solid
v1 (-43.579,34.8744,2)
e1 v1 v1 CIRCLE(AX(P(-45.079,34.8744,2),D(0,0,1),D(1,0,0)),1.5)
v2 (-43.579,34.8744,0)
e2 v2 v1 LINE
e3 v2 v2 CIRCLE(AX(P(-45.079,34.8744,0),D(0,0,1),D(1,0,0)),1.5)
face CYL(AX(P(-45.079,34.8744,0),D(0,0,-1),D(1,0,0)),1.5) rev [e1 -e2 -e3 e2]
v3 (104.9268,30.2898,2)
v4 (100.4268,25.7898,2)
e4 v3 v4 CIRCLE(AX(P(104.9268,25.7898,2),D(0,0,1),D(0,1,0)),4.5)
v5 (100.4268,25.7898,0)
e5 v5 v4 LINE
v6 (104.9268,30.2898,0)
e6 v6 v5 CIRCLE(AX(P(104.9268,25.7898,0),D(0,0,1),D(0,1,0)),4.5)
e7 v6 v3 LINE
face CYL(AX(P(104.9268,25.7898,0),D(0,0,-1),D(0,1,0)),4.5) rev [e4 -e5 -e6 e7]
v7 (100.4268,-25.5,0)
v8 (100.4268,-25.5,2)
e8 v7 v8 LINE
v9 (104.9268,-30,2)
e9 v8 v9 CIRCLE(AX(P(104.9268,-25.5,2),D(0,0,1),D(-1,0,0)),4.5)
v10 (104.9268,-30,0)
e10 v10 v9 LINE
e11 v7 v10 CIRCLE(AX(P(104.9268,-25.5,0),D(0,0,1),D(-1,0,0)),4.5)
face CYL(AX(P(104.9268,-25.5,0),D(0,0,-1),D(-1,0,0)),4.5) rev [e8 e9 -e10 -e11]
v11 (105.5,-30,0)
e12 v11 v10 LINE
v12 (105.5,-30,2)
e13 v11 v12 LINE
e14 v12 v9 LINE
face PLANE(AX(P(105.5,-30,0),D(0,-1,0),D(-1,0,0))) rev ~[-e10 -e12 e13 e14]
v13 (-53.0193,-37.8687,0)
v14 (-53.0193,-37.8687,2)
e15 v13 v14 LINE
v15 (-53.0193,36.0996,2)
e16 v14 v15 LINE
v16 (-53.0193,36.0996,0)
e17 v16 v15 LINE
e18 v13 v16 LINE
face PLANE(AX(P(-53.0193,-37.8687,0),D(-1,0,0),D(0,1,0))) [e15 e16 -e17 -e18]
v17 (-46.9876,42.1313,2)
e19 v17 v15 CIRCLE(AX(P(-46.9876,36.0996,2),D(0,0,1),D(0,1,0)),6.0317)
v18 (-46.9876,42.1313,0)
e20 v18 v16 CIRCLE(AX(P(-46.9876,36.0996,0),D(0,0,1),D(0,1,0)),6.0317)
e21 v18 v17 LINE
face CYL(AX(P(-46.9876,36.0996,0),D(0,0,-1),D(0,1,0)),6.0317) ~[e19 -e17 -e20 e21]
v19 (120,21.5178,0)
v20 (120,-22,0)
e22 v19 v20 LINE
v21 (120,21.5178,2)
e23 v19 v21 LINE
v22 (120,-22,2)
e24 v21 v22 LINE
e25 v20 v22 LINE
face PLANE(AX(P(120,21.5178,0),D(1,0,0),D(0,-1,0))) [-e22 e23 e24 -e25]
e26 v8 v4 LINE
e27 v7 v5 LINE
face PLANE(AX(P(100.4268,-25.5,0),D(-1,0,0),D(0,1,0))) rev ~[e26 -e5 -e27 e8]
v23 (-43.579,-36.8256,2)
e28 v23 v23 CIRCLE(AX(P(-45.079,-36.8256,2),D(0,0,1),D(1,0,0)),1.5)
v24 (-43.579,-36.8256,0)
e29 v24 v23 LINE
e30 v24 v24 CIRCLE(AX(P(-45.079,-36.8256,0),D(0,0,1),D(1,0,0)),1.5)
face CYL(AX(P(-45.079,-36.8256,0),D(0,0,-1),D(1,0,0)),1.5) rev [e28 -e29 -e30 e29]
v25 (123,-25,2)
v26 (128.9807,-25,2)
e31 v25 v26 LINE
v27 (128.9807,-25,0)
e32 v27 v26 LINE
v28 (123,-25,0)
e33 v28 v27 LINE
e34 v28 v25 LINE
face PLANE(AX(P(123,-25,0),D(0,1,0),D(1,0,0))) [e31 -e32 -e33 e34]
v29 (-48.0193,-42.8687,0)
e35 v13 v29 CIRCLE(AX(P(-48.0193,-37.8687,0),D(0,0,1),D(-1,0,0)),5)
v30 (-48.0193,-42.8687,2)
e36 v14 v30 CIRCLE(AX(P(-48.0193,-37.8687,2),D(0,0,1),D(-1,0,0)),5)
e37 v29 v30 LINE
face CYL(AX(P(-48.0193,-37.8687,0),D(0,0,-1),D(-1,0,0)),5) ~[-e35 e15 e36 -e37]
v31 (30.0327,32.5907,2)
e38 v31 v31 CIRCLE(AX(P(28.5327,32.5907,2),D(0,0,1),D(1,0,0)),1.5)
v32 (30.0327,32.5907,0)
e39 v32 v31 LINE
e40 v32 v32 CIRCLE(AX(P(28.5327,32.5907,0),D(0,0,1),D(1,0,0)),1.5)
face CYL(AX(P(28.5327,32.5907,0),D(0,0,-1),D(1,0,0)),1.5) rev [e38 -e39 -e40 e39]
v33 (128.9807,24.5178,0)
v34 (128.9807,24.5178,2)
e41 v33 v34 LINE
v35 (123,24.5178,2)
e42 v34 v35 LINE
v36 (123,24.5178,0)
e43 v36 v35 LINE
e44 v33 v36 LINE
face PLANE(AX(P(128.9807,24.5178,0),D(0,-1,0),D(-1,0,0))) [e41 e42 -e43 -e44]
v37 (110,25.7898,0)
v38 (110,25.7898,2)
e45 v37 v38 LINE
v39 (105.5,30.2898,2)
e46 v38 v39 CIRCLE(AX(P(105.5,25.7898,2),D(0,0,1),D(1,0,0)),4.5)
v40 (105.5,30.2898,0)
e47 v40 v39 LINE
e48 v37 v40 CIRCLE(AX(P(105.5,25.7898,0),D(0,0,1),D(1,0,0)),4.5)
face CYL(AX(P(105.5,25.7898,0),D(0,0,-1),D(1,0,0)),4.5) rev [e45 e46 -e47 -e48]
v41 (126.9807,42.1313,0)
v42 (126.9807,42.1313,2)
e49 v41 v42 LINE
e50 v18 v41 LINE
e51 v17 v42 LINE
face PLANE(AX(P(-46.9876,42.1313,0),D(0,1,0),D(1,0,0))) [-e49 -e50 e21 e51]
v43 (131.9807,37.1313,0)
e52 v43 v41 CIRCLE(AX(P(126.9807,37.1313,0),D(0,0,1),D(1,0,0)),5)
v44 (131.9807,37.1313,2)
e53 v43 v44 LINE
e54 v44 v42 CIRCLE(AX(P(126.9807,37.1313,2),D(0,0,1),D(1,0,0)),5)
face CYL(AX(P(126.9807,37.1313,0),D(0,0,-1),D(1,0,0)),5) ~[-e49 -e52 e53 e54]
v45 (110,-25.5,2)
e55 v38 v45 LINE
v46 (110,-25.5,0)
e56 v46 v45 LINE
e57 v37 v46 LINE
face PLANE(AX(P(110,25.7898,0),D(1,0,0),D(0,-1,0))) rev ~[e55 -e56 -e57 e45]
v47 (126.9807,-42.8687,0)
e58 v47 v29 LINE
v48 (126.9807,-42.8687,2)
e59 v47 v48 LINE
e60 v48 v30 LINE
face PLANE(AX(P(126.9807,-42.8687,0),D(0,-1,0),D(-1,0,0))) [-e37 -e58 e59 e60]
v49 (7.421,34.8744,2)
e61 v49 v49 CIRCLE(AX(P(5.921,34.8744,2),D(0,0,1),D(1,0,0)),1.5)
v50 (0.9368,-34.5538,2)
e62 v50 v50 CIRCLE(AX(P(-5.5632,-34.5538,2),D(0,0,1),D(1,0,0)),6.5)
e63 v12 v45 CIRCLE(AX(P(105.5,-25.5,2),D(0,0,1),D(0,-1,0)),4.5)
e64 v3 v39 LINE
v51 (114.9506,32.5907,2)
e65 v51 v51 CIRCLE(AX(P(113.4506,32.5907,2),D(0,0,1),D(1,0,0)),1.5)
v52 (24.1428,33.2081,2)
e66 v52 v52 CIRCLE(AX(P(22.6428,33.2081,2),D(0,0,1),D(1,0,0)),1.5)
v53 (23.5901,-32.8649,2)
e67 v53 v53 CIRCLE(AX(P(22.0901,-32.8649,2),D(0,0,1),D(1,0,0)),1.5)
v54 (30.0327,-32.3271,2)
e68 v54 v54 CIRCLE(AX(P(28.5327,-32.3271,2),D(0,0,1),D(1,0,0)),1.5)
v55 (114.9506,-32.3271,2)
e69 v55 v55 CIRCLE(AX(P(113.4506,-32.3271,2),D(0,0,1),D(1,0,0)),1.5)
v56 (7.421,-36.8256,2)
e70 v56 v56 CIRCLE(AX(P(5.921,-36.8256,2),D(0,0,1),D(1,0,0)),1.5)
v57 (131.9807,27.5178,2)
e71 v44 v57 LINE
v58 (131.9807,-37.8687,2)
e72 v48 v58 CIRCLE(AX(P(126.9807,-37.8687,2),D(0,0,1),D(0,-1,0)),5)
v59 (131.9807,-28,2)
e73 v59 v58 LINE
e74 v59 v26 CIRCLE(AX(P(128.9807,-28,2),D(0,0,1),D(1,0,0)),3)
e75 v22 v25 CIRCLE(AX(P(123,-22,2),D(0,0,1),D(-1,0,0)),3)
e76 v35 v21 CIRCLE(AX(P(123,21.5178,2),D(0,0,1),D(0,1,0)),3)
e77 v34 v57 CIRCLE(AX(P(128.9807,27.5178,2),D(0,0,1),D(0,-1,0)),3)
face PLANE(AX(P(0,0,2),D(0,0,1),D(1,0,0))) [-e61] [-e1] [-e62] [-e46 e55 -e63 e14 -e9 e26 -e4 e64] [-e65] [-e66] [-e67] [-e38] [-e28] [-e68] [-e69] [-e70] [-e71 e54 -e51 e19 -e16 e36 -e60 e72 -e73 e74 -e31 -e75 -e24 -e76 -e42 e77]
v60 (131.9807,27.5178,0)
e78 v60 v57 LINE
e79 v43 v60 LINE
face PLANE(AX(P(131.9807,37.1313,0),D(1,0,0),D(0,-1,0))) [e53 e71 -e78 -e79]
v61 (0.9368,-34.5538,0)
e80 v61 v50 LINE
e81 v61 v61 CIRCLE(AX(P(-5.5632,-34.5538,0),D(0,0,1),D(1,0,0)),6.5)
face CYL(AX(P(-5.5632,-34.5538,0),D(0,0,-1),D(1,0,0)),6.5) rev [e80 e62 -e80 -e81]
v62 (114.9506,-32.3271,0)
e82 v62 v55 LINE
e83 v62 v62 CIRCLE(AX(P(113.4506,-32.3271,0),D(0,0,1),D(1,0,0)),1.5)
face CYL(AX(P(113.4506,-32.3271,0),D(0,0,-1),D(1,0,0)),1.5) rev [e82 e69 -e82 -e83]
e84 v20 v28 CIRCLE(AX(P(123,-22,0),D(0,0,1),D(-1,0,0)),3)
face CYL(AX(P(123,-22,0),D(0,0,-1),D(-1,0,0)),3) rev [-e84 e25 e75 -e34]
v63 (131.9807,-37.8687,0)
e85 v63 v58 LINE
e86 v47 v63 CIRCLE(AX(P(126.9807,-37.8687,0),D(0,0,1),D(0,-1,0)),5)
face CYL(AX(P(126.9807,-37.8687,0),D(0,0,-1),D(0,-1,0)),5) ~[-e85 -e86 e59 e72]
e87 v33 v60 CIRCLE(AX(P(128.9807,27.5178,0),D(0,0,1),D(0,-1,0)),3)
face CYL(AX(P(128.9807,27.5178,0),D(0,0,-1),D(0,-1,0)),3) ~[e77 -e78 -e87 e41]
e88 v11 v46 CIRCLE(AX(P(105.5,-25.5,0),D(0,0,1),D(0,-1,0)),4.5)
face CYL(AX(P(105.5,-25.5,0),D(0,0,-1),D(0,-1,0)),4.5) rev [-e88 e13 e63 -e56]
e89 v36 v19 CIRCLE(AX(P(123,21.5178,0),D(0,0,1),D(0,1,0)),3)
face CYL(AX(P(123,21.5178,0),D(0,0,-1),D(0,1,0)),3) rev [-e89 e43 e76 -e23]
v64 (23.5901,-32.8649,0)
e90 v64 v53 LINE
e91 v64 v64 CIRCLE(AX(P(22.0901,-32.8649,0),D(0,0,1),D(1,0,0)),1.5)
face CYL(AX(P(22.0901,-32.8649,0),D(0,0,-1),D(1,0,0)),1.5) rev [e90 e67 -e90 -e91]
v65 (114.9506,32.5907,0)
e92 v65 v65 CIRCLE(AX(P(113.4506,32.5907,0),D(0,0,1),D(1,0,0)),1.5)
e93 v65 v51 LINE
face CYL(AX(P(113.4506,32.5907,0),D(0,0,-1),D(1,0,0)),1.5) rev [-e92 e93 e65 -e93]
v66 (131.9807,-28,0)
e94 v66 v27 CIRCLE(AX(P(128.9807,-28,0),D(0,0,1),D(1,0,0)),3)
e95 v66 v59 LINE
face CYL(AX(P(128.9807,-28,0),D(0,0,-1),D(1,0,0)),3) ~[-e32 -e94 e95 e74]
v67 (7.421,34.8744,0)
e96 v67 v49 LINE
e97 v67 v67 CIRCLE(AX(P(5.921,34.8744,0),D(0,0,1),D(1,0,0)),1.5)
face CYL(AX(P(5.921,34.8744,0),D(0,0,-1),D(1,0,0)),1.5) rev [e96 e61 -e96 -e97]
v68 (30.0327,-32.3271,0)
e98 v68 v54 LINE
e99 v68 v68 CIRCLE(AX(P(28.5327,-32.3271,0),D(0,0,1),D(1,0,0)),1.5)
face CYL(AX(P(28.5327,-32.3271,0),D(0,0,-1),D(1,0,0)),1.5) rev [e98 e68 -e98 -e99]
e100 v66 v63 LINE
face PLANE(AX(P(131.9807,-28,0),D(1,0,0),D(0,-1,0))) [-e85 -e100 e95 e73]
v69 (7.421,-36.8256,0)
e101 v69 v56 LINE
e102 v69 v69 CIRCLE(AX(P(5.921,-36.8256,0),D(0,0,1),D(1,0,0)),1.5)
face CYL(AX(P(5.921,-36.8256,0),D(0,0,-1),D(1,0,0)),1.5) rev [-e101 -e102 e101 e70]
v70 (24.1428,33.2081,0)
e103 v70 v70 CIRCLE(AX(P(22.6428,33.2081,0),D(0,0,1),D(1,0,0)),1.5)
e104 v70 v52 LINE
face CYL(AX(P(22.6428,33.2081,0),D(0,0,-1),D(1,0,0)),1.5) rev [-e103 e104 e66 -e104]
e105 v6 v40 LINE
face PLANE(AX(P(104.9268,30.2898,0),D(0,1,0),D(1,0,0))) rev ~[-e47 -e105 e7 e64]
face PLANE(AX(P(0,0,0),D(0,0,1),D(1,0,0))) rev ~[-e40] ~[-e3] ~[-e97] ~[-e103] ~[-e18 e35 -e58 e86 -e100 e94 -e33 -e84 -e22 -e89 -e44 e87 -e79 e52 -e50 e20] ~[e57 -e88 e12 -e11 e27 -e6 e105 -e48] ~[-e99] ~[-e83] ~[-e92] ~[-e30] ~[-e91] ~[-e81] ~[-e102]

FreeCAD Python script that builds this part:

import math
import FreeCAD as App
import Part
import Sketcher
from FreeCAD import Vector

doc = App.newDocument("Part")
body = doc.addObject("PartDesign::Body", "Body")

# Sketch on XY plane
sketch1 = body.newObject("Sketcher::SketchObject", "Sketch")
sketch1.AttachmentSupport = (doc.getObject("XY_Plane"), [""])
sketch1.MapMode = "FlatFace"
sketch1.addGeometry(Part.LineSegment(Vector(127, 42.1, 0), Vector(-47, 42.1, 0)), False)
sketch1.addGeometry(Part.ArcOfCircle(Part.Circle(Vector(-47, 36.1, 0), Vector(0, 0, 1), 6), math.radians(90), math.radians(180)), False)
sketch1.addGeometry(Part.LineSegment(Vector(-53, 36.1, 0), Vector(-53, -37.9, 0)), False)
sketch1.addGeometry(Part.ArcOfCircle(Part.Circle(Vector(-48, -37.9, 0), Vector(0, 0, 1), 5), math.radians(180), math.radians(270)), False)
sketch1.addGeometry(Part.LineSegment(Vector(-48, -42.9, 0), Vector(127, -42.9, 0)), False)
sketch1.addGeometry(Part.ArcOfCircle(Part.Circle(Vector(127, -37.9, 0), Vector(0, 0, 1), 5), math.radians(-90), math.radians(0)), False)
sketch1.addGeometry(Part.LineSegment(Vector(132, -37.9, 0), Vector(132, -28, 0)), False)
sketch1.addGeometry(Part.ArcOfCircle(Part.Circle(Vector(129, -28, 0), Vector(0, 0, 1), 3), math.radians(0), math.radians(90)), False)
sketch1.addGeometry(Part.LineSegment(Vector(129, -25, 0), Vector(123, -25, 0)), False)
sketch1.addGeometry(Part.ArcOfCircle(Part.Circle(Vector(123, -22, 0), Vector(0, 0, 1), 3), math.radians(180), math.radians(270)), False)
sketch1.addGeometry(Part.LineSegment(Vector(120, -22, 0), Vector(120, 21.5, 0)), False)
sketch1.addGeometry(Part.ArcOfCircle(Part.Circle(Vector(123, 21.5, 0), Vector(0, 0, 1), 3), math.radians(90), math.radians(180)), False)
sketch1.addGeometry(Part.LineSegment(Vector(123, 24.5, 0), Vector(129, 24.5, 0)), False)
sketch1.addGeometry(Part.ArcOfCircle(Part.Circle(Vector(129, 27.5, 0), Vector(0, 0, 1), 3), math.radians(-90), math.radians(0)), False)
sketch1.addGeometry(Part.LineSegment(Vector(132, 27.5, 0), Vector(132, 37.1, 0)), False)
sketch1.addGeometry(Part.ArcOfCircle(Part.Circle(Vector(127, 37.1, 0), Vector(0, 0, 1), 5), math.radians(0), math.radians(90)), False)
sketch1.addGeometry(Part.Circle(Vector(-45.1, -36.8, 0), Vector(0, 0, 1), 1.5), False)
sketch1.addGeometry(Part.Circle(Vector(-5.6, -34.6, 0), Vector(0, 0, 1), 6.5), False)
sketch1.addGeometry(Part.Circle(Vector(5.9, -36.8, 0), Vector(0, 0, 1), 1.5), False)
sketch1.addGeometry(Part.Circle(Vector(22.1, -32.9, 0), Vector(0, 0, 1), 1.5), False)
sketch1.addGeometry(Part.Circle(Vector(28.5, -32.3, 0), Vector(0, 0, 1), 1.5), False)
sketch1.addGeometry(Part.Circle(Vector(113.5, -32.3, 0), Vector(0, 0, 1), 1.5), False)
sketch1.addGeometry(Part.Circle(Vector(-45.1, 34.9, 0), Vector(0, 0, 1), 1.5), False)
sketch1.addGeometry(Part.Circle(Vector(5.9, 34.9, 0), Vector(0, 0, 1), 1.5), False)
sketch1.addGeometry(Part.Circle(Vector(22.6, 33.2, 0), Vector(0, 0, 1), 1.5), False)
sketch1.addGeometry(Part.Circle(Vector(28.5, 32.6, 0), Vector(0, 0, 1), 1.5), False)
sketch1.addGeometry(Part.ArcOfCircle(Part.Circle(Vector(104.9, 25.8, 0), Vector(0, 0, 1), 4.5), math.radians(90), math.radians(180)), False)
sketch1.addGeometry(Part.LineSegment(Vector(104.9, 30.3, 0), Vector(105.5, 30.3, 0)), False)
sketch1.addGeometry(Part.ArcOfCircle(Part.Circle(Vector(105.5, 25.8, 0), Vector(0, 0, 1), 4.5), math.radians(0), math.radians(90)), False)
sketch1.addGeometry(Part.LineSegment(Vector(110, 25.8, 0), Vector(110, -25.5, 0)), False)
sketch1.addGeometry(Part.ArcOfCircle(Part.Circle(Vector(105.5, -25.5, 0), Vector(0, 0, 1), 4.5), math.radians(-90), math.radians(0)), False)
sketch1.addGeometry(Part.LineSegment(Vector(105.5, -30, 0), Vector(104.9, -30, 0)), False)
sketch1.addGeometry(Part.ArcOfCircle(Part.Circle(Vector(104.9, -25.5, 0), Vector(0, 0, 1), 4.5), math.radians(180), math.radians(270)), False)
sketch1.addGeometry(Part.LineSegment(Vector(100.4, -25.5, 0), Vector(100.4, 25.8, 0)), False)
sketch1.addGeometry(Part.Circle(Vector(113.5, 32.6, 0), Vector(0, 0, 1), 1.5), False)
sketch1.addConstraint(Sketcher.Constraint("Tangent", 0, 2, 1, 1))
sketch1.addConstraint(Sketcher.Constraint("Tangent", 1, 2, 2, 1))
sketch1.addConstraint(Sketcher.Constraint("Tangent", 2, 2, 3, 1))
sketch1.addConstraint(Sketcher.Constraint("Tangent", 3, 2, 4, 1))
sketch1.addConstraint(Sketcher.Constraint("Tangent", 4, 2, 5, 1))
sketch1.addConstraint(Sketcher.Constraint("Tangent", 5, 2, 6, 1))
sketch1.addConstraint(Sketcher.Constraint("Tangent", 6, 2, 7, 1))
sketch1.addConstraint(Sketcher.Constraint("Tangent", 7, 2, 8, 1))
sketch1.addConstraint(Sketcher.Constraint("Tangent", 8, 2, 9, 2))
sketch1.addConstraint(Sketcher.Constraint("Tangent", 9, 1, 10, 1))
sketch1.addConstraint(Sketcher.Constraint("Tangent", 10, 2, 11, 2))
sketch1.addConstraint(Sketcher.Constraint("Tangent", 11, 1, 12, 1))
sketch1.addConstraint(Sketcher.Constraint("Tangent", 12, 2, 13, 1))
sketch1.addConstraint(Sketcher.Constraint("Tangent", 13, 2, 14, 1))
sketch1.addConstraint(Sketcher.Constraint("Tangent", 14, 2, 15, 1))
sketch1.addConstraint(Sketcher.Constraint("Tangent", 15, 2, 0, 1))
sketch1.addConstraint(Sketcher.Constraint("Tangent", 26, 1, 27, 1))
sketch1.addConstraint(Sketcher.Constraint("Tangent", 27, 2, 28, 2))
sketch1.addConstraint(Sketcher.Constraint("Tangent", 28, 1, 29, 1))
sketch1.addConstraint(Sketcher.Constraint("Tangent", 29, 2, 30, 2))
sketch1.addConstraint(Sketcher.Constraint("Tangent", 30, 1, 31, 1))
sketch1.addConstraint(Sketcher.Constraint("Tangent", 31, 2, 32, 2))
sketch1.addConstraint(Sketcher.Constraint("Tangent", 32, 1, 33, 1))
sketch1.addConstraint(Sketcher.Constraint("Tangent", 33, 2, 26, 2))
sketch1.addConstraint(Sketcher.Constraint("Horizontal", 0))
sketch1.addConstraint(Sketcher.Constraint("Vertical", 2))
sketch1.addConstraint(Sketcher.Constraint("Horizontal", 4))
sketch1.addConstraint(Sketcher.Constraint("Vertical", 6))
sketch1.addConstraint(Sketcher.Constraint("Horizontal", 8))
sketch1.addConstraint(Sketcher.Constraint("Vertical", 10))
sketch1.addConstraint(Sketcher.Constraint("Horizontal", 12))
sketch1.addConstraint(Sketcher.Constraint("Vertical", 14))
sketch1.addConstraint(Sketcher.Constraint("Horizontal", 27))
sketch1.addConstraint(Sketcher.Constraint("Vertical", 29))
sketch1.addConstraint(Sketcher.Constraint("Horizontal", 31))
sketch1.addConstraint(Sketcher.Constraint("Vertical", 33))
sketch1.addConstraint(Sketcher.Constraint("Equal", 3, 5))
sketch1.addConstraint(Sketcher.Constraint("Equal", 7, 9))
sketch1.addConstraint(Sketcher.Constraint("Equal", 9, 11))
sketch1.addConstraint(Sketcher.Constraint("Equal", 11, 13))
sketch1.addConstraint(Sketcher.Constraint("Equal", 5, 15))
sketch1.addConstraint(Sketcher.Constraint("Equal", 16, 18))
sketch1.addConstraint(Sketcher.Constraint("Equal", 18, 19))
sketch1.addConstraint(Sketcher.Constraint("Equal", 19, 20))
sketch1.addConstraint(Sketcher.Constraint("Equal", 20, 21))
sketch1.addConstraint(Sketcher.Constraint("Equal", 21, 22))
sketch1.addConstraint(Sketcher.Constraint("Equal", 22, 23))
sketch1.addConstraint(Sketcher.Constraint("Equal", 23, 24))
sketch1.addConstraint(Sketcher.Constraint("Equal", 24, 25))
sketch1.addConstraint(Sketcher.Constraint("Equal", 26, 28))
sketch1.addConstraint(Sketcher.Constraint("Equal", 28, 30))
sketch1.addConstraint(Sketcher.Constraint("Equal", 30, 32))
sketch1.addConstraint(Sketcher.Constraint("Equal", 25, 34))
sketch1.addConstraint(Sketcher.Constraint("Horizontal", 16, 3, 18, 3))
sketch1.addConstraint(Sketcher.Constraint("Horizontal", 20, 3, 21, 3))
sketch1.addConstraint(Sketcher.Constraint("Horizontal", 22, 3, 23, 3))
sketch1.addConstraint(Sketcher.Constraint("Horizontal", 25, 3, 34, 3))
sketch1.addConstraint(Sketcher.Constraint("Vertical", 7, 3, 13, 3))
sketch1.addConstraint(Sketcher.Constraint("Vertical", 16, 3, 22, 3))
sketch1.addConstraint(Sketcher.Constraint("Vertical", 18, 3, 23, 3))
sketch1.addConstraint(Sketcher.Constraint("Vertical", 20, 3, 25, 3))
sketch1.addConstraint(Sketcher.Constraint("Vertical", 21, 3, 34, 3))
sketch1.addConstraint(Sketcher.Constraint("Diameter", 16, 3.0))
sketch1.addConstraint(Sketcher.Constraint("Diameter", 17, 13.0))
sketch1.addConstraint(Sketcher.Constraint("Radius", 3, 5.0))
sketch1.addConstraint(Sketcher.Constraint("Radius", 7, 3.0))
sketch1.addConstraint(Sketcher.Constraint("Radius", 26, 4.5))
sketch1.addConstraint(Sketcher.Constraint("DistanceX", 16, 3, 18, 3, 51.0))
sketch1.addConstraint(Sketcher.Constraint("DistanceX", 29, 2, 8, 2, 13.0))
sketch1.addConstraint(Sketcher.Constraint("DistanceY", 16, 3, 22, 3, 71.7))
sketch1.addConstraint(Sketcher.Constraint("DistanceX", 4, 1, 4, 2, 175.0))
sketch1.addConstraint(Sketcher.Constraint("DistanceY", 7, 3, -1, 1, 28.0))
sketch1.addConstraint(Sketcher.Constraint("DistanceX", -1, 1, 9, 3, 123.0))
sketch1.addConstraint(Sketcher.Constraint("DistanceY", 30, 1, -1, 1, 30.0))
sketch1.addConstraint(Sketcher.Constraint("DistanceY", 5, 3, 15, 3, 75.0))
sketch1.addConstraint(Sketcher.Constraint("Radius", 1, 6.0317))
sketch1.addConstraint(Sketcher.Constraint("DistanceX", -1, 1, 19, 3, 22.09))
sketch1.addConstraint(Sketcher.Constraint("DistanceX", 21, 3, 5, 3, 13.53))
sketch1.addConstraint(Sketcher.Constraint("DistanceX", 24, 3, 20, 3, 5.89))
sketch1.addConstraint(Sketcher.Constraint("DistanceX", 8, 2, 8, 1, 5.9807))
sketch1.addConstraint(Sketcher.Constraint("DistanceX", 27, 1, 27, 2, 0.5732))
sketch1.addConstraint(Sketcher.Constraint("DistanceY", 6, 1, 6, 2, 9.8687))
sketch1.addConstraint(Sketcher.Constraint("DistanceY", 10, 1, 10, 2, 43.5178))
sketch1.addConstraint(Sketcher.Constraint("DistanceY", 29, 2, 29, 1, 51.2898))
sketch1.addConstraint(Sketcher.Constraint("DistanceX", 16, 3, -1, 1, 45.079))
sketch1.addConstraint(Sketcher.Constraint("DistanceY", 19, 3, -1, 1, 32.865))
sketch1.addConstraint(Sketcher.Constraint("DistanceY", 20, 3, -1, 1, 32.327))
sketch1.addConstraint(Sketcher.Constraint("DistanceY", -1, 1, 24, 3, 33.208))
sketch1.addConstraint(Sketcher.Constraint("DistanceY", 3, 3, 16, 3, 1.043))
sketch1.addConstraint(Sketcher.Constraint("DistanceX", 3, 3, 17, 3, 42.456))
sketch1.addConstraint(Sketcher.Constraint("DistanceY", 3, 3, 17, 3, 3.315))
sketch1.addConstraint(Sketcher.Constraint("DistanceX", 17, 3, 20, 3, 34.096))
sketch1.addConstraint(Sketcher.Constraint("DistanceY", 28, 3, 34, 3, 6.801))
pad1 = body.newObject("PartDesign::Pad", "Pad")
pad1.Profile = sketch1
pad1.Length = 2

doc.recompute()
